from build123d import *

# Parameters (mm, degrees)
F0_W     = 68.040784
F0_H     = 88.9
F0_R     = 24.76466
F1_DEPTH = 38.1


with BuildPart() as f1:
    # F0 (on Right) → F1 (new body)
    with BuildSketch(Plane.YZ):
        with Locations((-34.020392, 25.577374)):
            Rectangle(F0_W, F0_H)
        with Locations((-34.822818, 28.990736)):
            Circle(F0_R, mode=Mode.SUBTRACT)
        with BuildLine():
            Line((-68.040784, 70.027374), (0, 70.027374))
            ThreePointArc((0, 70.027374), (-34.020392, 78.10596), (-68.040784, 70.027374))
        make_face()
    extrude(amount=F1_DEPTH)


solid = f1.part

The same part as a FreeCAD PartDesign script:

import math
import FreeCAD as App
import Part
import Sketcher

V = App.Vector
Q = App.Units.Quantity

doc = App.newDocument("Part")
params = doc.addObject("Spreadsheet::Sheet", "Params")
for row, (alias, value) in enumerate([
    ("sketch1_height", "3.5 in"),
    ("pad1_length", "1.5 in"),
], start=1):
    params.set(f"A{row}", alias)
    params.set(f"B{row}", "=" + value)
    params.setAlias(f"B{row}", alias)

body = doc.addObject("PartDesign::Body", "Body")

# Sketch on YZ plane
sketch1 = body.newObject("Sketcher::SketchObject", "Sketch")
sketch1.AttachmentSupport = (doc.getObject("YZ_Plane"), [""])
sketch1.MapMode = "FlatFace"
sketch1.addGeometry([
    Part.LineSegment(V(-68, 70, 0), V(-68, -19, 0)),  # 0
    Part.LineSegment(V(-68, -19, 0), V(0, -19, 0)),  # 1
    Part.LineSegment(V(0, -19, 0), V(0, 70, 0)),  # 2
    Part.ArcOfCircle(Part.Circle(V(-34, 2, 0), V(0, 0, 1), 76), math.radians(63), math.radians(117)),  # 3
    Part.Circle(V(-35, 29, 0), V(0, 0, 1), 25),  # 4
], False)
sketch1.addConstraint([
    Sketcher.Constraint("Coincident", 0, 2, 1, 1),
    Sketcher.Constraint("Coincident", 1, 2, 2, 1),
    Sketcher.Constraint("Coincident", 2, 2, 3, 1),
    Sketcher.Constraint("Coincident", 3, 2, 0, 1),
    Sketcher.Constraint("Vertical", 0),
    Sketcher.Constraint("Horizontal", 1),
    Sketcher.Constraint("Vertical", 2),
    Sketcher.Constraint("PointOnObject", 1, 2, -2),
    Sketcher.Constraint("Horizontal", 2, 2, 3, 2),
    Sketcher.Constraint("DistanceY", 0, 2, 0, 1, Q("3.5 in")),
    Sketcher.Constraint("Diameter", 4, 49.52932),
    Sketcher.Constraint("Radius", 3, 75.672316),
    Sketcher.Constraint("DistanceX", 1, 1, 1, 2, 68.040784),
    Sketcher.Constraint("DistanceY", 3, 3, 4, 3, 26.557092),
    Sketcher.Constraint("DistanceY", -1, 1, 3, 3, 2.433644),
    Sketcher.Constraint("DistanceX", 4, 3, -1, 1, 34.822818),
])
sketch1.setExpression("Constraints[9]", "Params.sketch1_height")
pad1 = body.newObject("PartDesign::Pad", "Pad")
pad1.Profile = sketch1
pad1.setExpression("Length", "Params.pad1_length")

doc.recompute()
